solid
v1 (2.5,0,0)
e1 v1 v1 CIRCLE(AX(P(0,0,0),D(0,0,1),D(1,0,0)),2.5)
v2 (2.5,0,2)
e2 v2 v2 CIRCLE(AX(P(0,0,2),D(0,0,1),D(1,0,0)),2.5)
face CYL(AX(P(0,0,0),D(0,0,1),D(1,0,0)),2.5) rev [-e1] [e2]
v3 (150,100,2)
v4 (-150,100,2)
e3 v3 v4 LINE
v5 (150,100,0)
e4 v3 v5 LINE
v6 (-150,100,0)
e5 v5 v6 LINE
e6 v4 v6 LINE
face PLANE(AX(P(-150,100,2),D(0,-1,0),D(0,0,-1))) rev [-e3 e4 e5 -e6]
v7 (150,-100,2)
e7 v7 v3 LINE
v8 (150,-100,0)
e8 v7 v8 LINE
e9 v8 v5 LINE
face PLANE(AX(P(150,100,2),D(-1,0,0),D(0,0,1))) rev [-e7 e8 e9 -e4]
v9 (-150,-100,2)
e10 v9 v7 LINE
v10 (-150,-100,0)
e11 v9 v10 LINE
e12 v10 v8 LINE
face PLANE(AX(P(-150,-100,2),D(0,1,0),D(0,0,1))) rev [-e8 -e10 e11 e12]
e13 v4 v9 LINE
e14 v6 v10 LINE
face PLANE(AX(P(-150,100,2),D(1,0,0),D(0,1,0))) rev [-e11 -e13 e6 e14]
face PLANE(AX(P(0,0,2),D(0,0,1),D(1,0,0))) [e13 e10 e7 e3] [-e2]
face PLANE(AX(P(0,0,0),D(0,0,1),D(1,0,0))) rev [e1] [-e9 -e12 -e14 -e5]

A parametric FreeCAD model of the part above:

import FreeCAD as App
import Part
import Sketcher
from FreeCAD import Vector
Q = App.Units.Quantity


def add_polygon(sketch, points):
    """Adds a closed chain of lines whose ends are joined by coincident constraints."""
    first, n = sketch.GeometryCount, len(points)
    for a, b in zip(points, points[1:] + points[:1]):
        sketch.addGeometry(Part.LineSegment(App.Vector(*a, 0), App.Vector(*b, 0)), False)
    for i in range(n):
        sketch.addConstraint(Sketcher.Constraint("Coincident", first + i, 2, first + (i + 1) % n, 1))

doc = App.newDocument("Part")
body = doc.addObject("PartDesign::Body", "Body")

sketch1 = body.newObject("Sketcher::SketchObject", "Sketch")
sketch1.AttachmentSupport = (doc.getObject("XY_Plane"), [""])
sketch1.MapMode = "FlatFace"
add_polygon(sketch1, [(-150, 100), (-150, -100), (150, -100), (150, 100)])
sketch1.addConstraint([
    Sketcher.Constraint("Vertical", 0),
    Sketcher.Constraint("Horizontal", 1),
    Sketcher.Constraint("Vertical", 2),
    Sketcher.Constraint("Horizontal", 3),
    Sketcher.Constraint("Symmetric", 0, 2, 2, 2, -1, 1),
    Sketcher.Constraint("DistanceX", 1, 1, 1, 2, Q("300 mm")),
    Sketcher.Constraint("DistanceY", 0, 2, 0, 1, Q("200 mm")),
])
pad1 = body.newObject("PartDesign::Pad", "Pad")
pad1.Profile = sketch1
pad1.Length = 2

sketch2 = body.newObject("Sketcher::SketchObject", "Sketch001")
sketch2.AttachmentSupport = (doc.getObject("XY_Plane"), [""])
sketch2.MapMode = "FlatFace"
sketch2.AttachmentOffset = App.Placement(Vector(0, 0, 2), App.Rotation())
sketch2.addGeometry(Part.Circle(Vector(0, 0, 0), Vector(0, 0, 1), 2.5), False)
sketch2.addConstraint([
    Sketcher.Constraint("Coincident", 0, 3, -1, 1),
    Sketcher.Constraint("Diameter", 0, Q("5 mm")),
])
pocket1 = body.newObject("PartDesign::Pocket", "Pocket")
pocket1.Profile = sketch2
pocket1.Type = "ThroughAll"

doc.recompute()
